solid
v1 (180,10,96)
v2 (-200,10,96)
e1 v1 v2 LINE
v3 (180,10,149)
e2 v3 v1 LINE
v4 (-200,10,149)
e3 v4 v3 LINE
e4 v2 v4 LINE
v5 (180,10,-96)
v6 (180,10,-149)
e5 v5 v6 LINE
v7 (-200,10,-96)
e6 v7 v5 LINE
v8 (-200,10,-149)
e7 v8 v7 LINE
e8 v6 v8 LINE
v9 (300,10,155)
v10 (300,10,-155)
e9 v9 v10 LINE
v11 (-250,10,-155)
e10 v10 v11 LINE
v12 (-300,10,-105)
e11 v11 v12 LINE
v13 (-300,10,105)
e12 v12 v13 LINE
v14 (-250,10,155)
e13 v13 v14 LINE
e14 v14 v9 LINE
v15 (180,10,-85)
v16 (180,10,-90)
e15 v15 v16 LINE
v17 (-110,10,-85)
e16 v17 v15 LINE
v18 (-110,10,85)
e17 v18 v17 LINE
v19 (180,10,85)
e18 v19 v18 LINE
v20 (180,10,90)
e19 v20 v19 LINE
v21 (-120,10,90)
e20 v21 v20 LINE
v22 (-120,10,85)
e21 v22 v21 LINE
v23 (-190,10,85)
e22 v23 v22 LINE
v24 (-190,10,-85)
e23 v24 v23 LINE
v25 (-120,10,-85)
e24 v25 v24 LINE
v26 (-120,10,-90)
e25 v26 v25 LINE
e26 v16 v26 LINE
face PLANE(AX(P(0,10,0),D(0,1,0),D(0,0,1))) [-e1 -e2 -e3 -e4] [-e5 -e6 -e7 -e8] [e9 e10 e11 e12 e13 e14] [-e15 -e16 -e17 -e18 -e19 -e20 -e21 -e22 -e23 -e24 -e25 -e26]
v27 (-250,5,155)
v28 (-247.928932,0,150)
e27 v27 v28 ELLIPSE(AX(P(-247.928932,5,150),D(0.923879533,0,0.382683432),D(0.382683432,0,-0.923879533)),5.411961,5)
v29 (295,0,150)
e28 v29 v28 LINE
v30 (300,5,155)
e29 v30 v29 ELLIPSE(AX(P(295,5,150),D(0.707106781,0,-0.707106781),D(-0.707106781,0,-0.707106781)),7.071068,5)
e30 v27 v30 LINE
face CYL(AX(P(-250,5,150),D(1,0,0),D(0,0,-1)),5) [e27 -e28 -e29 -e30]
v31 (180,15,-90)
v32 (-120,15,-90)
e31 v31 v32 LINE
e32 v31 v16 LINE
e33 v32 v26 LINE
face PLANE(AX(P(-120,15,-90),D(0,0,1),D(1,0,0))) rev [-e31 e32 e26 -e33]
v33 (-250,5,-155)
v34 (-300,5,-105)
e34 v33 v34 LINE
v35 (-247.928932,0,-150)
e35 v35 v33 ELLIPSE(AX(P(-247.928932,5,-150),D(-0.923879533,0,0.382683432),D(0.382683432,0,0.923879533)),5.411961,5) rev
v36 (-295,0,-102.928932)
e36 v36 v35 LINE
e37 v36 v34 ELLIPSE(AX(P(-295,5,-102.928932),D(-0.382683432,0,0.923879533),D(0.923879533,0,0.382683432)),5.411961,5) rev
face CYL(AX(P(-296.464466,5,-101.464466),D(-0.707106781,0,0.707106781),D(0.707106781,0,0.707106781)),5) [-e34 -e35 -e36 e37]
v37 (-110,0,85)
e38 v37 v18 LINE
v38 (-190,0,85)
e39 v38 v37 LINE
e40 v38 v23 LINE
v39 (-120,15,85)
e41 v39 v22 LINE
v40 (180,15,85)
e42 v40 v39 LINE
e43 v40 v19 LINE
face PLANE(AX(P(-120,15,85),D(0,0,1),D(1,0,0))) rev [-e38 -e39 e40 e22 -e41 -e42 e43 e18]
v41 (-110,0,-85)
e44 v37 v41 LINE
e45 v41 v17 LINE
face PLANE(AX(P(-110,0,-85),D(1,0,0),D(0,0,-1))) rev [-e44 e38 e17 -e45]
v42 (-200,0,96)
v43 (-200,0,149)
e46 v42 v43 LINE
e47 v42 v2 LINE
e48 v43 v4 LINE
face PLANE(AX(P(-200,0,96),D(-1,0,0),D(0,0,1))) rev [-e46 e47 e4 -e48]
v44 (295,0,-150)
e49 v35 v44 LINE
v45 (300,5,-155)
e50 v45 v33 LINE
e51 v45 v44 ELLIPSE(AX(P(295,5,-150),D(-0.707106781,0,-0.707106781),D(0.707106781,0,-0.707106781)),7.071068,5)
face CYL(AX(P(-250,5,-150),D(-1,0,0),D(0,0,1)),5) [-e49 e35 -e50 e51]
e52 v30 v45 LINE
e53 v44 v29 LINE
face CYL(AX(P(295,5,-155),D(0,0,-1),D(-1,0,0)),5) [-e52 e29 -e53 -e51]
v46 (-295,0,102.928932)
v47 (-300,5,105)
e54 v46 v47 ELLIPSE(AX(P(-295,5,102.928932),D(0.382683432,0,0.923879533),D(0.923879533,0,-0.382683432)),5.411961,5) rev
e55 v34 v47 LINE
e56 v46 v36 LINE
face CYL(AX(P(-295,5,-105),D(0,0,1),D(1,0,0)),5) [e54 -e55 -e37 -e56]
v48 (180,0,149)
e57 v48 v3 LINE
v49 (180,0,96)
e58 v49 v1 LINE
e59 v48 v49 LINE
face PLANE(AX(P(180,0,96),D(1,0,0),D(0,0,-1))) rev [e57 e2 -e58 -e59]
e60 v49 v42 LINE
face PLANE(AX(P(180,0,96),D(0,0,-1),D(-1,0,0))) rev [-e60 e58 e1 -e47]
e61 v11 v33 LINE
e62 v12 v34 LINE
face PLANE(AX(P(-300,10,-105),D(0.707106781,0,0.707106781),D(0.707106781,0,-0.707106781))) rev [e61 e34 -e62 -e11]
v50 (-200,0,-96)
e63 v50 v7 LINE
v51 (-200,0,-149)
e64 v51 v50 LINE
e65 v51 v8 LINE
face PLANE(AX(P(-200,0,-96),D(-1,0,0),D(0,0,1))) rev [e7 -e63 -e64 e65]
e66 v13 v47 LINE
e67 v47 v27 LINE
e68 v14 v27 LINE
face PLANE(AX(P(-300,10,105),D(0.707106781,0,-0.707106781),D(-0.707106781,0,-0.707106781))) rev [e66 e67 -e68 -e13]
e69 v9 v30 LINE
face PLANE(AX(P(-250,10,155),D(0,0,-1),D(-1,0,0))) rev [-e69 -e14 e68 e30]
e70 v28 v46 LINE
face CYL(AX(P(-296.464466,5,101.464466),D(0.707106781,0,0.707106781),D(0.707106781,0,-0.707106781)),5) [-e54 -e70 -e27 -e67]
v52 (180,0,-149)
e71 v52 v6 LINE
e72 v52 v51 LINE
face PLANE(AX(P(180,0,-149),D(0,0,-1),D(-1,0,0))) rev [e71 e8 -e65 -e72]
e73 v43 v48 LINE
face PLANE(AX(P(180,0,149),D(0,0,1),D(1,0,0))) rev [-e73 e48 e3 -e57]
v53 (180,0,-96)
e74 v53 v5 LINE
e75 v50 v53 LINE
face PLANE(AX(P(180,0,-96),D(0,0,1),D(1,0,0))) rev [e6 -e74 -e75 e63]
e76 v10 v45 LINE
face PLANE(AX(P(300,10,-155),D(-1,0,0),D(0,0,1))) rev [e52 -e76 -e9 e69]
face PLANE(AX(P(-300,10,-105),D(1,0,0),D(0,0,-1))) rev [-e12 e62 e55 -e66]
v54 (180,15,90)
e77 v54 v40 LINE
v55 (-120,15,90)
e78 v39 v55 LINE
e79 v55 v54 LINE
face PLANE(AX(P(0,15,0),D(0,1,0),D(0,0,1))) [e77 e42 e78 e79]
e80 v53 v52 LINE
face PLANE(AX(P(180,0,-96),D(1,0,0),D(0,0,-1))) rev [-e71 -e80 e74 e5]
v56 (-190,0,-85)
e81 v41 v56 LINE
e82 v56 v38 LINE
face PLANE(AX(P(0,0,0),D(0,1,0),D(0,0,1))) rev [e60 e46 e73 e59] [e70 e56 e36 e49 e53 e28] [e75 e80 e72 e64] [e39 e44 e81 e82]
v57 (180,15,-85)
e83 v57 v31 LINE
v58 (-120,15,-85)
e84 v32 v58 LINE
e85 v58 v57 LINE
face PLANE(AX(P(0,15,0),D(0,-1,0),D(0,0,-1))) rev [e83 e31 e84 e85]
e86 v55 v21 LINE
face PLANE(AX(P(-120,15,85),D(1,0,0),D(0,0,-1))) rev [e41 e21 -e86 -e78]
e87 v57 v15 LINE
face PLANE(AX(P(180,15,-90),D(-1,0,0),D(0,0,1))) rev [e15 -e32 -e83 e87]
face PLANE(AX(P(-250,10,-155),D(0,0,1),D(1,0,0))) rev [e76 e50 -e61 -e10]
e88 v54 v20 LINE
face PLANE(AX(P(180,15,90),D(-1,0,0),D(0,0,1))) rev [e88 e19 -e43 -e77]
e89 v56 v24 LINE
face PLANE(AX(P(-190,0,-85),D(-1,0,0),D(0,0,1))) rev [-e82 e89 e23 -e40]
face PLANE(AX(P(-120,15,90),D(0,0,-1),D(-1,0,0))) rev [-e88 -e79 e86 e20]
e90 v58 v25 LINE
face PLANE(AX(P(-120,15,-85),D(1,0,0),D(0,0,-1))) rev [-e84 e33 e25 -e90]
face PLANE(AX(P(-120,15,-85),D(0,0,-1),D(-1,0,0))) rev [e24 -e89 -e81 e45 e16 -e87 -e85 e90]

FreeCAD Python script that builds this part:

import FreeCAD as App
import Part
import Sketcher

V = App.Vector
Q = App.Units.Quantity


def edges_at(feature, points):
    """Names of the edges that pass closest to the given points."""
    edges = feature.Shape.Edges
    near = lambda p: min(range(len(edges)), key=lambda i: edges[i].distToShape(Part.Vertex(*p))[0])
    return sorted({f"Edge{near(p) + 1}" for p in points})

doc = App.newDocument("Part")
params = doc.addObject("Spreadsheet::Sheet", "Params")
for row, (alias, value) in enumerate([
    ("sketch1_width", "550 mm"),
    ("sketch1_height", "210 mm"),
    ("sketch1_height2", "310 mm"),
    ("pad1_length", "10 mm"),
    ("sketch2_width", "300 mm"),
    ("sketch2_height", "5 mm"),
    ("pad2_length", "5 mm"),
    ("fillet_radius", "5 mm"),
    ("sketch3_width", "380 mm"),
    ("sketch3_width2", "80 mm"),
    ("sketch3_height", "53 mm"),
    ("sketch3_height2", "170 mm"),
    ("pocket1_length", "10 mm"),
], start=1):
    params.set(f"A{row}", alias)
    params.set(f"B{row}", "=" + value)
    params.setAlias(f"B{row}", alias)

body = doc.addObject("PartDesign::Body", "Body")

# Sketch on XZ plane
sketch1 = doc.addObject("Sketcher::SketchObject", "Sketch")
body.addObject(sketch1)
sketch1.AttachmentSupport = (doc.XZ_Plane, [""])
sketch1.MapMode = "FlatFace"
sketch1.addGeometry(Part.LineSegment(V(-250, -155, 0), V(-300, -105, 0)), False)
sketch1.addGeometry(Part.LineSegment(V(-300, -105, 0), V(-300, 105, 0)), False)
sketch1.addGeometry(Part.LineSegment(V(-300, 105, 0), V(-250, 155, 0)), False)
sketch1.addGeometry(Part.LineSegment(V(-250, 155, 0), V(300, 155, 0)), False)
sketch1.addGeometry(Part.LineSegment(V(300, 155, 0), V(300, -155, 0)), False)
sketch1.addGeometry(Part.LineSegment(V(300, -155, 0), V(-250, -155, 0)), False)
sketch1.addConstraint(Sketcher.Constraint("Coincident", 0, 2, 1, 1))
sketch1.addConstraint(Sketcher.Constraint("Coincident", 1, 2, 2, 1))
sketch1.addConstraint(Sketcher.Constraint("Coincident", 2, 2, 3, 1))
sketch1.addConstraint(Sketcher.Constraint("Coincident", 3, 2, 4, 1))
sketch1.addConstraint(Sketcher.Constraint("Coincident", 4, 2, 5, 1))
sketch1.addConstraint(Sketcher.Constraint("Coincident", 5, 2, 0, 1))
sketch1.addConstraint(Sketcher.Constraint("Vertical", 1))
sketch1.addConstraint(Sketcher.Constraint("Horizontal", 3))
sketch1.addConstraint(Sketcher.Constraint("Vertical", 4))
sketch1.addConstraint(Sketcher.Constraint("Horizontal", 5))
sketch1.addConstraint(Sketcher.Constraint("Symmetric", 2, 2, 5, 2, -1))
sketch1.addConstraint(Sketcher.Constraint("Perpendicular", 0, 2))
sketch1.addConstraint(Sketcher.Constraint("Equal", 0, 2))
sketch1.addConstraint(Sketcher.Constraint("DistanceX", 3, 1, 3, 2, Q("550 mm")))
sketch1.addConstraint(Sketcher.Constraint("DistanceY", 1, 1, 1, 2, Q("210 mm")))
sketch1.addConstraint(Sketcher.Constraint("DistanceY", 4, 2, 4, 1, Q("310 mm")))
sketch1.addConstraint(Sketcher.Constraint("DistanceX", 0, 2, -1, 1, Q("300 mm")))
sketch1.setExpression("Constraints[13]", "Params.sketch1_width")
sketch1.setExpression("Constraints[14]", "Params.sketch1_height")
sketch1.setExpression("Constraints[15]", "Params.sketch1_height2")
pad1 = doc.addObject("PartDesign::Pad", "Pad")
body.addObject(pad1)
pad1.Profile = sketch1
pad1.setExpression("Length", "Params.pad1_length")
pad1.Reversed = True

# Sketch on XZ plane
sketch2 = doc.addObject("Sketcher::SketchObject", "Sketch001")
body.addObject(sketch2)
sketch2.AttachmentSupport = (doc.XZ_Plane, [""])
sketch2.MapMode = "FlatFace"
sketch2.AttachmentOffset = App.Placement(V(0, 0, -10), App.Rotation())
sketch2.addGeometry(Part.LineSegment(V(-120, 85, 0), V(-120, 90, 0)), False)
sketch2.addGeometry(Part.LineSegment(V(-120, 90, 0), V(180, 90, 0)), False)
sketch2.addGeometry(Part.LineSegment(V(180, 90, 0), V(180, 85, 0)), False)
sketch2.addGeometry(Part.LineSegment(V(180, 85, 0), V(-120, 85, 0)), False)
sketch2.addGeometry(Part.LineSegment(V(-120, -90, 0), V(-120, -85, 0)), False)
sketch2.addGeometry(Part.LineSegment(V(-120, -85, 0), V(180, -85, 0)), False)
sketch2.addGeometry(Part.LineSegment(V(180, -85, 0), V(180, -90, 0)), False)
sketch2.addGeometry(Part.LineSegment(V(180, -90, 0), V(-120, -90, 0)), False)
sketch2.addConstraint(Sketcher.Constraint("Coincident", 0, 2, 1, 1))
sketch2.addConstraint(Sketcher.Constraint("Coincident", 1, 2, 2, 1))
sketch2.addConstraint(Sketcher.Constraint("Coincident", 2, 2, 3, 1))
sketch2.addConstraint(Sketcher.Constraint("Coincident", 3, 2, 0, 1))
sketch2.addConstraint(Sketcher.Constraint("Coincident", 4, 2, 5, 1))
sketch2.addConstraint(Sketcher.Constraint("Coincident", 5, 2, 6, 1))
sketch2.addConstraint(Sketcher.Constraint("Coincident", 6, 2, 7, 1))
sketch2.addConstraint(Sketcher.Constraint("Coincident", 7, 2, 4, 1))
sketch2.addConstraint(Sketcher.Constraint("Vertical", 0))
sketch2.addConstraint(Sketcher.Constraint("Horizontal", 1))
sketch2.addConstraint(Sketcher.Constraint("Vertical", 2))
sketch2.addConstraint(Sketcher.Constraint("Horizontal", 3))
sketch2.addConstraint(Sketcher.Constraint("Vertical", 4))
sketch2.addConstraint(Sketcher.Constraint("Horizontal", 5))
sketch2.addConstraint(Sketcher.Constraint("Vertical", 6))
sketch2.addConstraint(Sketcher.Constraint("Horizontal", 7))
sketch2.addConstraint(Sketcher.Constraint("Symmetric", 3, 2, 4, 2, -1))
sketch2.addConstraint(Sketcher.Constraint("Symmetric", 1, 2, 6, 2, -1))
sketch2.addConstraint(Sketcher.Constraint("DistanceX", 1, 1, 1, 2, Q("300 mm")))
sketch2.addConstraint(Sketcher.Constraint("DistanceY", 0, 1, 0, 2, Q("5 mm")))
sketch2.addConstraint(Sketcher.Constraint("DistanceX", 0, 2, -1, 1, Q("120 mm")))
sketch2.addConstraint(Sketcher.Constraint("DistanceY", -1, 1, 0, 2, Q("90 mm")))
sketch2.setExpression("Constraints[18]", "Params.sketch2_width")
sketch2.setExpression("Constraints[19]", "Params.sketch2_height")
pad2 = doc.addObject("PartDesign::Pad", "Pad001")
body.addObject(pad2)
pad2.Profile = sketch2
pad2.setExpression("Length", "Params.pad2_length")
pad2.Reversed = True
doc.recompute()

fillet = doc.addObject("PartDesign::Fillet", "Fillet")
body.addObject(fillet)
fillet.Base = (pad2, edges_at(pad2, [
    (25, 0, 155),
    (-275, 0, 130),
    (-300, 0, 0),
    (-275, 0, -130),
    (25, 0, -155),
    (300, 0, 0),
]))
fillet.setExpression("Radius", "Params.fillet_radius")

# Sketch on XZ plane
sketch3 = doc.addObject("Sketcher::SketchObject", "Sketch002")
body.addObject(sketch3)
sketch3.AttachmentSupport = (doc.XZ_Plane, [""])
sketch3.MapMode = "FlatFace"
sketch3.AttachmentOffset = App.Placement(V(0, 0, -10), App.Rotation())
sketch3.addGeometry(Part.LineSegment(V(-200, -149, 0), V(-200, -96, 0)), False)
sketch3.addGeometry(Part.LineSegment(V(-200, -96, 0), V(180, -96, 0)), False)
sketch3.addGeometry(Part.LineSegment(V(180, -96, 0), V(180, -149, 0)), False)
sketch3.addGeometry(Part.LineSegment(V(180, -149, 0), V(-200, -149, 0)), False)
sketch3.addGeometry(Part.LineSegment(V(-200, 96, 0), V(-200, 149, 0)), False)
sketch3.addGeometry(Part.LineSegment(V(-200, 149, 0), V(180, 149, 0)), False)
sketch3.addGeometry(Part.LineSegment(V(180, 149, 0), V(180, 96, 0)), False)
sketch3.addGeometry(Part.LineSegment(V(180, 96, 0), V(-200, 96, 0)), False)
sketch3.addGeometry(Part.LineSegment(V(-190, -85, 0), V(-190, 85, 0)), False)
sketch3.addGeometry(Part.LineSegment(V(-190, 85, 0), V(-110, 85, 0)), False)
sketch3.addGeometry(Part.LineSegment(V(-110, 85, 0), V(-110, -85, 0)), False)
sketch3.addGeometry(Part.LineSegment(V(-110, -85, 0), V(-190, -85, 0)), False)
sketch3.addConstraint(Sketcher.Constraint("Coincident", 0, 2, 1, 1))
sketch3.addConstraint(Sketcher.Constraint("Coincident", 1, 2, 2, 1))
sketch3.addConstraint(Sketcher.Constraint("Coincident", 2, 2, 3, 1))
sketch3.addConstraint(Sketcher.Constraint("Coincident", 3, 2, 0, 1))
sketch3.addConstraint(Sketcher.Constraint("Coincident", 4, 2, 5, 1))
sketch3.addConstraint(Sketcher.Constraint("Coincident", 5, 2, 6, 1))
sketch3.addConstraint(Sketcher.Constraint("Coincident", 6, 2, 7, 1))
sketch3.addConstraint(Sketcher.Constraint("Coincident", 7, 2, 4, 1))
sketch3.addConstraint(Sketcher.Constraint("Coincident", 8, 2, 9, 1))
sketch3.addConstraint(Sketcher.Constraint("Coincident", 9, 2, 10, 1))
sketch3.addConstraint(Sketcher.Constraint("Coincident", 10, 2, 11, 1))
sketch3.addConstraint(Sketcher.Constraint("Coincident", 11, 2, 8, 1))
sketch3.addConstraint(Sketcher.Constraint("Vertical", 0))
sketch3.addConstraint(Sketcher.Constraint("Horizontal", 1))
sketch3.addConstraint(Sketcher.Constraint("Vertical", 2))
sketch3.addConstraint(Sketcher.Constraint("Horizontal", 3))
sketch3.addConstraint(Sketcher.Constraint("Vertical", 4))
sketch3.addConstraint(Sketcher.Constraint("Horizontal", 5))
sketch3.addConstraint(Sketcher.Constraint("Vertical", 6))
sketch3.addConstraint(Sketcher.Constraint("Horizontal", 7))
sketch3.addConstraint(Sketcher.Constraint("Vertical", 8))
sketch3.addConstraint(Sketcher.Constraint("Horizontal", 9))
sketch3.addConstraint(Sketcher.Constraint("Vertical", 10))
sketch3.addConstraint(Sketcher.Constraint("Horizontal", 11))
sketch3.addConstraint(Sketcher.Constraint("Symmetric", 3, 2, 4, 2, -1))
sketch3.addConstraint(Sketcher.Constraint("Symmetric", 1, 2, 6, 2, -1))
sketch3.addConstraint(Sketcher.Constraint("DistanceX", 1, 1, 1, 2, Q("380 mm")))
sketch3.addConstraint(Sketcher.Constraint("DistanceX", 9, 1, 9, 2, Q("80 mm")))
sketch3.addConstraint(Sketcher.Constraint("DistanceY", 0, 1, 0, 2, Q("53 mm")))
sketch3.addConstraint(Sketcher.Constraint("DistanceY", 8, 1, 8, 2, Q("170 mm")))
sketch3.addConstraint(Sketcher.Constraint("DistanceX", 0, 2, -1, 1, Q("200 mm")))
sketch3.addConstraint(Sketcher.Constraint("DistanceY", 0, 2, -1, 1, Q("96 mm")))
sketch3.addConstraint(Sketcher.Constraint("DistanceX", 8, 2, -1, 1, Q("190 mm")))
sketch3.addConstraint(Sketcher.Constraint("DistanceY", -1, 1, 8, 2, Q("85 mm")))
sketch3.setExpression("Constraints[26]", "Params.sketch3_width")
sketch3.setExpression("Constraints[27]", "Params.sketch3_width2")
sketch3.setExpression("Constraints[28]", "Params.sketch3_height")
sketch3.setExpression("Constraints[29]", "Params.sketch3_height2")
pocket1 = doc.addObject("PartDesign::Pocket", "Pocket")
body.addObject(pocket1)
pocket1.Profile = sketch3
pocket1.setExpression("Length", "Params.pocket1_length")
pocket1.Reversed = True

doc.recompute()
